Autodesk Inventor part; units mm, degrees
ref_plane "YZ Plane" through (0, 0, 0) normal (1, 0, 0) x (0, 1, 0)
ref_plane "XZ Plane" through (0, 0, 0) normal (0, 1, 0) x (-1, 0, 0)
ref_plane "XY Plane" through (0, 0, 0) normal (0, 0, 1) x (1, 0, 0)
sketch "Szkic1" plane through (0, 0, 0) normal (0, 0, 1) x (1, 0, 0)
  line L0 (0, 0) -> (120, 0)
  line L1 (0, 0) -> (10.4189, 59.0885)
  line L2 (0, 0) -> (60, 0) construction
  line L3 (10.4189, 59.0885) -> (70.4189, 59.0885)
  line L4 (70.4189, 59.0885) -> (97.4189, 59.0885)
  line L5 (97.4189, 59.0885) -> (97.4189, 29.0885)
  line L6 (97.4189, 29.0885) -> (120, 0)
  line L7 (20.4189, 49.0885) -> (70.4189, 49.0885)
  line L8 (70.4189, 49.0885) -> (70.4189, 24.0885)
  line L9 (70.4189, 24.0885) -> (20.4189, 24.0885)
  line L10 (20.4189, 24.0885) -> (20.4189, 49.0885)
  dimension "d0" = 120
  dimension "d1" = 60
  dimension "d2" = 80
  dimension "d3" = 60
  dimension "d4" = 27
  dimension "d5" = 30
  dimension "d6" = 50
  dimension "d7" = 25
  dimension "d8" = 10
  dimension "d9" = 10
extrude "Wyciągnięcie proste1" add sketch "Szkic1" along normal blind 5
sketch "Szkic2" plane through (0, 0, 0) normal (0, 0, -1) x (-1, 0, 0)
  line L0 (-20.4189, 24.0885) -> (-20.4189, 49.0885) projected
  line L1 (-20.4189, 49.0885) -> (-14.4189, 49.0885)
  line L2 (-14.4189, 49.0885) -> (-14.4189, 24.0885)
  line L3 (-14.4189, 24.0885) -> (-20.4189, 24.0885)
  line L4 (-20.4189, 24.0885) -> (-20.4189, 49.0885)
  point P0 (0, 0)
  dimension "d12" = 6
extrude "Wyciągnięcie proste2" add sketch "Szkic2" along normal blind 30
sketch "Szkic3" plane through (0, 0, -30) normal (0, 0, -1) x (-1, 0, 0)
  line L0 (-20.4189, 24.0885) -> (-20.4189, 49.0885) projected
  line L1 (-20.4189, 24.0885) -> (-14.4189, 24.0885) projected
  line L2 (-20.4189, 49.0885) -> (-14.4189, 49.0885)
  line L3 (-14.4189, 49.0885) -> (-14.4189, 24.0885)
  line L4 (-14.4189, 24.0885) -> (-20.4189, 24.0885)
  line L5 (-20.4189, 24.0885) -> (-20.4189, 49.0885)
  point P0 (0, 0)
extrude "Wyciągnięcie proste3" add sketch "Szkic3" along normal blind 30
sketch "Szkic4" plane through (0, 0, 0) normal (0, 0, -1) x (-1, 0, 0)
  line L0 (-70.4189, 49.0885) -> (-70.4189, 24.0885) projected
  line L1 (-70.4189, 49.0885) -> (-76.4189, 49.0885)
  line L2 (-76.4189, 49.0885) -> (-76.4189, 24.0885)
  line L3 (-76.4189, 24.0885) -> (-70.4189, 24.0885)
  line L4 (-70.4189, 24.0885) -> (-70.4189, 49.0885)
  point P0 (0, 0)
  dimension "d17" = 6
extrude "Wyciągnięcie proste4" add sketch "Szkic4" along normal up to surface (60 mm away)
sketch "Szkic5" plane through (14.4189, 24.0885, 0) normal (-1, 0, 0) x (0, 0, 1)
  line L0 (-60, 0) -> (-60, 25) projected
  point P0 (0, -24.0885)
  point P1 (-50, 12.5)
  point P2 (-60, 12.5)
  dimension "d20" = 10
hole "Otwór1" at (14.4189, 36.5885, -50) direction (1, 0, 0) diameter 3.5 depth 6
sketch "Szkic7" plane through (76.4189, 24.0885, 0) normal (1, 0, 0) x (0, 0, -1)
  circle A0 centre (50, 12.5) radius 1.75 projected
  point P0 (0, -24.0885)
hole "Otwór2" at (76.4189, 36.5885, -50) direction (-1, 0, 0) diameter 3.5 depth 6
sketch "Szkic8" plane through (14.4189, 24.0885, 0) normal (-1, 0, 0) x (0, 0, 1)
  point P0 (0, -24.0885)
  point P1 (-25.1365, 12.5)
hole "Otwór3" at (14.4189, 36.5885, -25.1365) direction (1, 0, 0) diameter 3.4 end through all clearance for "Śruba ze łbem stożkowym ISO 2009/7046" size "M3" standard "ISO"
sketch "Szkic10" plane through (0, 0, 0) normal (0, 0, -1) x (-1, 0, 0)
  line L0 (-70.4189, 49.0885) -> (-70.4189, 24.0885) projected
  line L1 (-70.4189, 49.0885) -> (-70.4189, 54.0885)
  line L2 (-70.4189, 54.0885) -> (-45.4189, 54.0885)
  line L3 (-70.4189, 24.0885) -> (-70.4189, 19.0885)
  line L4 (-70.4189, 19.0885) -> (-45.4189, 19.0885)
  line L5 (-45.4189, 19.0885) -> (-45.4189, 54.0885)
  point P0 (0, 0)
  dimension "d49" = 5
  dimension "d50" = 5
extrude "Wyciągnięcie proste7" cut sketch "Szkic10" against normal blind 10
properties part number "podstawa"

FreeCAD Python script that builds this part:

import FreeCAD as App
import Part
import Sketcher
from FreeCAD import Vector
Q = App.Units.Quantity

doc = App.newDocument("Part")
params = doc.addObject("Spreadsheet::Sheet", "Params")
for row, (alias, value) in enumerate([
    ("sketch1_width", "120 mm"),
    ("sketch1_width2", "50 mm"),
    ("sketch1_height", "30 mm"),
    ("sketch1_height2", "25 mm"),
    ("sketch1_length", "60 mm"),
    ("pad1_length", "5 mm"),
    ("sketch2_width", "6 mm"),
    ("sketch2_height", "25 mm"),
    ("pad2_length", "30 mm"),
    ("sketch3_width", "6 mm"),
    ("sketch3_height", "25 mm"),
    ("pad3_length", "30 mm"),
    ("sketch4_width", "6 mm"),
    ("sketch4_height", "25 mm"),
    ("pad4_length", "60 mm"),
    ("sketch5_diameter", "3.5 mm"),
    ("hole_diameter", "3.5 mm"),
    ("hole_depth", "6 mm"),
    ("sketch6_diameter", "3.5 mm"),
    ("hole2_diameter", "3.5 mm"),
    ("hole2_depth", "6 mm"),
    ("sketch7_diameter", "3.4 mm"),
    ("hole3_diameter", "3.4 mm"),
    ("sketch8_width", "25 mm"),
    ("sketch8_height", "35 mm"),
    ("pocket1_length", "10 mm"),
], start=1):
    params.set(f"A{row}", alias)
    params.set(f"B{row}", "=" + value)
    params.setAlias(f"B{row}", alias)

body = doc.addObject("PartDesign::Body", "Body")

# Sketch on XY plane
sketch1 = body.newObject("Sketcher::SketchObject", "Sketch")
sketch1.AttachmentSupport = (doc.getObject("XY_Plane"), [""])
sketch1.MapMode = "FlatFace"
sketch1.addGeometry(Part.LineSegment(Vector(10.4189, 59.0885, 0), Vector(0, 0, 0)), False)
sketch1.addGeometry(Part.LineSegment(Vector(0, 0, 0), Vector(120, 0, 0)), False)
sketch1.addGeometry(Part.LineSegment(Vector(120, 0, 0), Vector(97.4189, 29.0885, 0)), False)
sketch1.addGeometry(Part.LineSegment(Vector(97.4189, 29.0885, 0), Vector(97.4189, 59.0885, 0)), False)
sketch1.addGeometry(Part.LineSegment(Vector(97.4189, 59.0885, 0), Vector(10.4189, 59.0885, 0)), False)
sketch1.addGeometry(Part.LineSegment(Vector(20.4189, 24.0885, 0), Vector(20.4189, 49.0885, 0)), False)
sketch1.addGeometry(Part.LineSegment(Vector(20.4189, 49.0885, 0), Vector(70.4189, 49.0885, 0)), False)
sketch1.addGeometry(Part.LineSegment(Vector(70.4189, 49.0885, 0), Vector(70.4189, 24.0885, 0)), False)
sketch1.addGeometry(Part.LineSegment(Vector(70.4189, 24.0885, 0), Vector(20.4189, 24.0885, 0)), False)
sketch1.addConstraint(Sketcher.Constraint("Coincident", 0, 2, 1, 1))
sketch1.addConstraint(Sketcher.Constraint("Coincident", 1, 2, 2, 1))
sketch1.addConstraint(Sketcher.Constraint("Coincident", 2, 2, 3, 1))
sketch1.addConstraint(Sketcher.Constraint("Coincident", 3, 2, 4, 1))
sketch1.addConstraint(Sketcher.Constraint("Coincident", 4, 2, 0, 1))
sketch1.addConstraint(Sketcher.Constraint("Coincident", 5, 2, 6, 1))
sketch1.addConstraint(Sketcher.Constraint("Coincident", 6, 2, 7, 1))
sketch1.addConstraint(Sketcher.Constraint("Coincident", 7, 2, 8, 1))
sketch1.addConstraint(Sketcher.Constraint("Coincident", 8, 2, 5, 1))
sketch1.addConstraint(Sketcher.Constraint("Horizontal", 1))
sketch1.addConstraint(Sketcher.Constraint("Vertical", 3))
sketch1.addConstraint(Sketcher.Constraint("Horizontal", 4))
sketch1.addConstraint(Sketcher.Constraint("Vertical", 5))
sketch1.addConstraint(Sketcher.Constraint("Horizontal", 6))
sketch1.addConstraint(Sketcher.Constraint("Vertical", 7))
sketch1.addConstraint(Sketcher.Constraint("Horizontal", 8))
sketch1.addConstraint(Sketcher.Constraint("Coincident", 0, 2, -1, 1))
sketch1.addConstraint(Sketcher.Constraint("DistanceX", 1, 1, 1, 2, Q("120 mm")))
sketch1.addConstraint(Sketcher.Constraint("DistanceX", 6, 1, 6, 2, Q("50 mm")))
sketch1.addConstraint(Sketcher.Constraint("DistanceY", 3, 1, 3, 2, Q("30 mm")))
sketch1.addConstraint(Sketcher.Constraint("DistanceY", 5, 1, 5, 2, Q("25 mm")))
sketch1.addConstraint(Sketcher.Constraint("Distance", 0, Q("60 mm")))
sketch1.addConstraint(Sketcher.Constraint("DistanceX", 4, 2, 5, 2, Q("10 mm")))
sketch1.addConstraint(Sketcher.Constraint("DistanceY", 5, 2, 4, 2, Q("10 mm")))
sketch1.addConstraint(Sketcher.Constraint("DistanceX", 6, 2, 3, 2, Q("27 mm")))
sketch1.addConstraint(Sketcher.Constraint("Angle", 0, Q("-100 deg")))
sketch1.setExpression("Constraints[17]", "Params.sketch1_width")
sketch1.setExpression("Constraints[18]", "Params.sketch1_width2")
sketch1.setExpression("Constraints[19]", "Params.sketch1_height")
sketch1.setExpression("Constraints[20]", "Params.sketch1_height2")
sketch1.setExpression("Constraints[21]", "Params.sketch1_length")
pad1 = body.newObject("PartDesign::Pad", "Pad")
pad1.Profile = sketch1
pad1.setExpression("Length", "Params.pad1_length")

# Sketch on XY plane
sketch2 = body.newObject("Sketcher::SketchObject", "Sketch001")
sketch2.AttachmentSupport = (doc.getObject("XY_Plane"), [""])
sketch2.MapMode = "FlatFace"
sketch2.addGeometry(Part.LineSegment(Vector(20.4189, 49.0885, 0), Vector(20.4189, 24.0885, 0)), False)
sketch2.addGeometry(Part.LineSegment(Vector(20.4189, 24.0885, 0), Vector(14.4189, 24.0885, 0)), False)
sketch2.addGeometry(Part.LineSegment(Vector(14.4189, 24.0885, 0), Vector(14.4189, 49.0885, 0)), False)
sketch2.addGeometry(Part.LineSegment(Vector(14.4189, 49.0885, 0), Vector(20.4189, 49.0885, 0)), False)
sketch2.addConstraint(Sketcher.Constraint("Coincident", 0, 2, 1, 1))
sketch2.addConstraint(Sketcher.Constraint("Coincident", 1, 2, 2, 1))
sketch2.addConstraint(Sketcher.Constraint("Coincident", 2, 2, 3, 1))
sketch2.addConstraint(Sketcher.Constraint("Coincident", 3, 2, 0, 1))
sketch2.addConstraint(Sketcher.Constraint("Vertical", 0))
sketch2.addConstraint(Sketcher.Constraint("Horizontal", 1))
sketch2.addConstraint(Sketcher.Constraint("Vertical", 2))
sketch2.addConstraint(Sketcher.Constraint("Horizontal", 3))
sketch2.addConstraint(Sketcher.Constraint("DistanceX", 1, 2, 1, 1, Q("6 mm")))
sketch2.addConstraint(Sketcher.Constraint("DistanceY", 0, 2, 0, 1, Q("25 mm")))
sketch2.addConstraint(Sketcher.Constraint("DistanceX", -1, 1, 0, 2, Q("20.419 mm")))
sketch2.addConstraint(Sketcher.Constraint("DistanceY", -1, 1, 0, 2, Q("24.0885 mm")))
sketch2.setExpression("Constraints[8]", "Params.sketch2_width")
sketch2.setExpression("Constraints[9]", "Params.sketch2_height")
pad2 = body.newObject("PartDesign::Pad", "Pad001")
pad2.Profile = sketch2
pad2.setExpression("Length", "Params.pad2_length")
pad2.Reversed = True

# Sketch on XY plane
sketch3 = body.newObject("Sketcher::SketchObject", "Sketch002")
sketch3.AttachmentSupport = (doc.getObject("XY_Plane"), [""])
sketch3.MapMode = "FlatFace"
sketch3.AttachmentOffset = App.Placement(Vector(0, 0, -30), App.Rotation())
sketch3.addGeometry(Part.LineSegment(Vector(20.4189, 49.0885, 0), Vector(20.4189, 24.0885, 0)), False)
sketch3.addGeometry(Part.LineSegment(Vector(20.4189, 24.0885, 0), Vector(14.4189, 24.0885, 0)), False)
sketch3.addGeometry(Part.LineSegment(Vector(14.4189, 24.0885, 0), Vector(14.4189, 49.0885, 0)), False)
sketch3.addGeometry(Part.LineSegment(Vector(14.4189, 49.0885, 0), Vector(20.4189, 49.0885, 0)), False)
sketch3.addConstraint(Sketcher.Constraint("Coincident", 0, 2, 1, 1))
sketch3.addConstraint(Sketcher.Constraint("Coincident", 1, 2, 2, 1))
sketch3.addConstraint(Sketcher.Constraint("Coincident", 2, 2, 3, 1))
sketch3.addConstraint(Sketcher.Constraint("Coincident", 3, 2, 0, 1))
sketch3.addConstraint(Sketcher.Constraint("Vertical", 0))
sketch3.addConstraint(Sketcher.Constraint("Horizontal", 1))
sketch3.addConstraint(Sketcher.Constraint("Vertical", 2))
sketch3.addConstraint(Sketcher.Constraint("Horizontal", 3))
sketch3.addConstraint(Sketcher.Constraint("DistanceX", 1, 2, 1, 1, Q("6 mm")))
sketch3.addConstraint(Sketcher.Constraint("DistanceY", 0, 2, 0, 1, Q("25 mm")))
sketch3.addConstraint(Sketcher.Constraint("DistanceX", -1, 1, 0, 2, Q("20.419 mm")))
sketch3.addConstraint(Sketcher.Constraint("DistanceY", -1, 1, 0, 2, Q("24.0885 mm")))
sketch3.setExpression("Constraints[8]", "Params.sketch3_width")
sketch3.setExpression("Constraints[9]", "Params.sketch3_height")
pad3 = body.newObject("PartDesign::Pad", "Pad002")
pad3.Profile = sketch3
pad3.setExpression("Length", "Params.pad3_length")
pad3.Reversed = True

# Sketch on XY plane
sketch4 = body.newObject("Sketcher::SketchObject", "Sketch003")
sketch4.AttachmentSupport = (doc.getObject("XY_Plane"), [""])
sketch4.MapMode = "FlatFace"
sketch4.addGeometry(Part.LineSegment(Vector(70.4189, 24.0885, 0), Vector(70.4189, 49.0885, 0)), False)
sketch4.addGeometry(Part.LineSegment(Vector(70.4189, 49.0885, 0), Vector(76.4189, 49.0885, 0)), False)
sketch4.addGeometry(Part.LineSegment(Vector(76.4189, 49.0885, 0), Vector(76.4189, 24.0885, 0)), False)
sketch4.addGeometry(Part.LineSegment(Vector(76.4189, 24.0885, 0), Vector(70.4189, 24.0885, 0)), False)
sketch4.addConstraint(Sketcher.Constraint("Coincident", 0, 2, 1, 1))
sketch4.addConstraint(Sketcher.Constraint("Coincident", 1, 2, 2, 1))
sketch4.addConstraint(Sketcher.Constraint("Coincident", 2, 2, 3, 1))
sketch4.addConstraint(Sketcher.Constraint("Coincident", 3, 2, 0, 1))
sketch4.addConstraint(Sketcher.Constraint("Vertical", 0))
sketch4.addConstraint(Sketcher.Constraint("Horizontal", 1))
sketch4.addConstraint(Sketcher.Constraint("Vertical", 2))
sketch4.addConstraint(Sketcher.Constraint("Horizontal", 3))
sketch4.addConstraint(Sketcher.Constraint("DistanceX", 1, 1, 1, 2, Q("6 mm")))
sketch4.addConstraint(Sketcher.Constraint("DistanceY", 0, 1, 0, 2, Q("25 mm")))
sketch4.addConstraint(Sketcher.Constraint("DistanceX", -1, 1, 0, 2, Q("70.419 mm")))
sketch4.addConstraint(Sketcher.Constraint("DistanceY", -1, 1, 0, 2, Q("49.0885 mm")))
sketch4.setExpression("Constraints[8]", "Params.sketch4_width")
sketch4.setExpression("Constraints[9]", "Params.sketch4_height")
pad4 = body.newObject("PartDesign::Pad", "Pad003")
pad4.Profile = sketch4
pad4.setExpression("Length", "Params.pad4_length")
pad4.Reversed = True

# Sketch on YZ plane
sketch5 = body.newObject("Sketcher::SketchObject", "Sketch004")
sketch5.AttachmentSupport = (doc.getObject("YZ_Plane"), [""])
sketch5.MapMode = "FlatFace"
sketch5.AttachmentOffset = App.Placement(Vector(0, 0, 14.4189), App.Rotation())
sketch5.addGeometry(Part.Circle(Vector(36.5885, -50, 0), Vector(0, 0, 1), 1.75), False)
sketch5.addConstraint(Sketcher.Constraint("Diameter", 0, Q("3.5 mm")))
sketch5.addConstraint(Sketcher.Constraint("DistanceY", 0, 3, -1, 1, Q("50 mm")))
sketch5.addConstraint(Sketcher.Constraint("DistanceX", -1, 1, 0, 3, Q("36.5885 mm")))
sketch5.setExpression("Constraints[0]", "Params.sketch5_diameter")
doc.recompute()
hole = body.newObject("PartDesign::Hole", "Hole")
hole.Profile = sketch5
hole.ThreadType = "None"
hole.setExpression("Diameter", "Params.hole_diameter")
hole.DepthType = "Dimension"
hole.setExpression("Depth", "Params.hole_depth")
hole.DrillPoint = "Flat"
hole.Reversed = True

# Sketch on YZ plane
sketch6 = body.newObject("Sketcher::SketchObject", "Sketch005")
sketch6.AttachmentSupport = (doc.getObject("YZ_Plane"), [""])
sketch6.MapMode = "FlatFace"
sketch6.AttachmentOffset = App.Placement(Vector(0, 0, 76.4189), App.Rotation())
sketch6.addGeometry(Part.Circle(Vector(36.5885, -50, 0), Vector(0, 0, 1), 1.75), False)
sketch6.addConstraint(Sketcher.Constraint("Diameter", 0, Q("3.5 mm")))
sketch6.addConstraint(Sketcher.Constraint("DistanceY", 0, 3, -1, 1, Q("50 mm")))
sketch6.addConstraint(Sketcher.Constraint("DistanceX", -1, 1, 0, 3, Q("36.5885 mm")))
sketch6.setExpression("Constraints[0]", "Params.sketch6_diameter")
doc.recompute()
hole2 = body.newObject("PartDesign::Hole", "Hole001")
hole2.Profile = sketch6
hole2.ThreadType = "None"
hole2.setExpression("Diameter", "Params.hole2_diameter")
hole2.DepthType = "Dimension"
hole2.setExpression("Depth", "Params.hole2_depth")
hole2.DrillPoint = "Flat"

# Sketch on YZ plane
sketch7 = body.newObject("Sketcher::SketchObject", "Sketch006")
sketch7.AttachmentSupport = (doc.getObject("YZ_Plane"), [""])
sketch7.MapMode = "FlatFace"
sketch7.AttachmentOffset = App.Placement(Vector(0, 0, 14.4189), App.Rotation())
sketch7.addGeometry(Part.Circle(Vector(36.5885, -25.1365, 0), Vector(0, 0, 1), 1.7), False)
sketch7.addConstraint(Sketcher.Constraint("Diameter", 0, Q("3.4 mm")))
sketch7.addConstraint(Sketcher.Constraint("DistanceX", -1, 1, 0, 3, Q("36.5885 mm")))
sketch7.addConstraint(Sketcher.Constraint("DistanceY", 0, 3, -1, 1, Q("25.1365 mm")))
sketch7.setExpression("Constraints[0]", "Params.sketch7_diameter")
doc.recompute()
hole3 = body.newObject("PartDesign::Hole", "Hole002")
hole3.Profile = sketch7
hole3.ThreadType = "None"
hole3.setExpression("Diameter", "Params.hole3_diameter")
hole3.DepthType = "ThroughAll"
hole3.Reversed = True

# Sketch on XY plane
sketch8 = body.newObject("Sketcher::SketchObject", "Sketch007")
sketch8.AttachmentSupport = (doc.getObject("XY_Plane"), [""])
sketch8.MapMode = "FlatFace"
sketch8.addGeometry(Part.LineSegment(Vector(70.4189, 54.0885, 0), Vector(70.4189, 19.0885, 0)), False)
sketch8.addGeometry(Part.LineSegment(Vector(70.4189, 19.0885, 0), Vector(45.4189, 19.0885, 0)), False)
sketch8.addGeometry(Part.LineSegment(Vector(45.4189, 19.0885, 0), Vector(45.4189, 54.0885, 0)), False)
sketch8.addGeometry(Part.LineSegment(Vector(45.4189, 54.0885, 0), Vector(70.4189, 54.0885, 0)), False)
sketch8.addConstraint(Sketcher.Constraint("Coincident", 0, 2, 1, 1))
sketch8.addConstraint(Sketcher.Constraint("Coincident", 1, 2, 2, 1))
sketch8.addConstraint(Sketcher.Constraint("Coincident", 2, 2, 3, 1))
sketch8.addConstraint(Sketcher.Constraint("Coincident", 3, 2, 0, 1))
sketch8.addConstraint(Sketcher.Constraint("Vertical", 0))
sketch8.addConstraint(Sketcher.Constraint("Horizontal", 1))
sketch8.addConstraint(Sketcher.Constraint("Vertical", 2))
sketch8.addConstraint(Sketcher.Constraint("Horizontal", 3))
sketch8.addConstraint(Sketcher.Constraint("DistanceX", 1, 2, 1, 1, Q("25 mm")))
sketch8.addConstraint(Sketcher.Constraint("DistanceY", 0, 2, 0, 1, Q("35 mm")))
sketch8.addConstraint(Sketcher.Constraint("DistanceX", -1, 1, 0, 2, Q("70.419 mm")))
sketch8.addConstraint(Sketcher.Constraint("DistanceY", -1, 1, 0, 2, Q("19.0885 mm")))
sketch8.setExpression("Constraints[8]", "Params.sketch8_width")
sketch8.setExpression("Constraints[9]", "Params.sketch8_height")
pocket1 = body.newObject("PartDesign::Pocket", "Pocket")
pocket1.Profile = sketch8
pocket1.setExpression("Length", "Params.pocket1_length")
pocket1.Reversed = True

doc.recompute()
